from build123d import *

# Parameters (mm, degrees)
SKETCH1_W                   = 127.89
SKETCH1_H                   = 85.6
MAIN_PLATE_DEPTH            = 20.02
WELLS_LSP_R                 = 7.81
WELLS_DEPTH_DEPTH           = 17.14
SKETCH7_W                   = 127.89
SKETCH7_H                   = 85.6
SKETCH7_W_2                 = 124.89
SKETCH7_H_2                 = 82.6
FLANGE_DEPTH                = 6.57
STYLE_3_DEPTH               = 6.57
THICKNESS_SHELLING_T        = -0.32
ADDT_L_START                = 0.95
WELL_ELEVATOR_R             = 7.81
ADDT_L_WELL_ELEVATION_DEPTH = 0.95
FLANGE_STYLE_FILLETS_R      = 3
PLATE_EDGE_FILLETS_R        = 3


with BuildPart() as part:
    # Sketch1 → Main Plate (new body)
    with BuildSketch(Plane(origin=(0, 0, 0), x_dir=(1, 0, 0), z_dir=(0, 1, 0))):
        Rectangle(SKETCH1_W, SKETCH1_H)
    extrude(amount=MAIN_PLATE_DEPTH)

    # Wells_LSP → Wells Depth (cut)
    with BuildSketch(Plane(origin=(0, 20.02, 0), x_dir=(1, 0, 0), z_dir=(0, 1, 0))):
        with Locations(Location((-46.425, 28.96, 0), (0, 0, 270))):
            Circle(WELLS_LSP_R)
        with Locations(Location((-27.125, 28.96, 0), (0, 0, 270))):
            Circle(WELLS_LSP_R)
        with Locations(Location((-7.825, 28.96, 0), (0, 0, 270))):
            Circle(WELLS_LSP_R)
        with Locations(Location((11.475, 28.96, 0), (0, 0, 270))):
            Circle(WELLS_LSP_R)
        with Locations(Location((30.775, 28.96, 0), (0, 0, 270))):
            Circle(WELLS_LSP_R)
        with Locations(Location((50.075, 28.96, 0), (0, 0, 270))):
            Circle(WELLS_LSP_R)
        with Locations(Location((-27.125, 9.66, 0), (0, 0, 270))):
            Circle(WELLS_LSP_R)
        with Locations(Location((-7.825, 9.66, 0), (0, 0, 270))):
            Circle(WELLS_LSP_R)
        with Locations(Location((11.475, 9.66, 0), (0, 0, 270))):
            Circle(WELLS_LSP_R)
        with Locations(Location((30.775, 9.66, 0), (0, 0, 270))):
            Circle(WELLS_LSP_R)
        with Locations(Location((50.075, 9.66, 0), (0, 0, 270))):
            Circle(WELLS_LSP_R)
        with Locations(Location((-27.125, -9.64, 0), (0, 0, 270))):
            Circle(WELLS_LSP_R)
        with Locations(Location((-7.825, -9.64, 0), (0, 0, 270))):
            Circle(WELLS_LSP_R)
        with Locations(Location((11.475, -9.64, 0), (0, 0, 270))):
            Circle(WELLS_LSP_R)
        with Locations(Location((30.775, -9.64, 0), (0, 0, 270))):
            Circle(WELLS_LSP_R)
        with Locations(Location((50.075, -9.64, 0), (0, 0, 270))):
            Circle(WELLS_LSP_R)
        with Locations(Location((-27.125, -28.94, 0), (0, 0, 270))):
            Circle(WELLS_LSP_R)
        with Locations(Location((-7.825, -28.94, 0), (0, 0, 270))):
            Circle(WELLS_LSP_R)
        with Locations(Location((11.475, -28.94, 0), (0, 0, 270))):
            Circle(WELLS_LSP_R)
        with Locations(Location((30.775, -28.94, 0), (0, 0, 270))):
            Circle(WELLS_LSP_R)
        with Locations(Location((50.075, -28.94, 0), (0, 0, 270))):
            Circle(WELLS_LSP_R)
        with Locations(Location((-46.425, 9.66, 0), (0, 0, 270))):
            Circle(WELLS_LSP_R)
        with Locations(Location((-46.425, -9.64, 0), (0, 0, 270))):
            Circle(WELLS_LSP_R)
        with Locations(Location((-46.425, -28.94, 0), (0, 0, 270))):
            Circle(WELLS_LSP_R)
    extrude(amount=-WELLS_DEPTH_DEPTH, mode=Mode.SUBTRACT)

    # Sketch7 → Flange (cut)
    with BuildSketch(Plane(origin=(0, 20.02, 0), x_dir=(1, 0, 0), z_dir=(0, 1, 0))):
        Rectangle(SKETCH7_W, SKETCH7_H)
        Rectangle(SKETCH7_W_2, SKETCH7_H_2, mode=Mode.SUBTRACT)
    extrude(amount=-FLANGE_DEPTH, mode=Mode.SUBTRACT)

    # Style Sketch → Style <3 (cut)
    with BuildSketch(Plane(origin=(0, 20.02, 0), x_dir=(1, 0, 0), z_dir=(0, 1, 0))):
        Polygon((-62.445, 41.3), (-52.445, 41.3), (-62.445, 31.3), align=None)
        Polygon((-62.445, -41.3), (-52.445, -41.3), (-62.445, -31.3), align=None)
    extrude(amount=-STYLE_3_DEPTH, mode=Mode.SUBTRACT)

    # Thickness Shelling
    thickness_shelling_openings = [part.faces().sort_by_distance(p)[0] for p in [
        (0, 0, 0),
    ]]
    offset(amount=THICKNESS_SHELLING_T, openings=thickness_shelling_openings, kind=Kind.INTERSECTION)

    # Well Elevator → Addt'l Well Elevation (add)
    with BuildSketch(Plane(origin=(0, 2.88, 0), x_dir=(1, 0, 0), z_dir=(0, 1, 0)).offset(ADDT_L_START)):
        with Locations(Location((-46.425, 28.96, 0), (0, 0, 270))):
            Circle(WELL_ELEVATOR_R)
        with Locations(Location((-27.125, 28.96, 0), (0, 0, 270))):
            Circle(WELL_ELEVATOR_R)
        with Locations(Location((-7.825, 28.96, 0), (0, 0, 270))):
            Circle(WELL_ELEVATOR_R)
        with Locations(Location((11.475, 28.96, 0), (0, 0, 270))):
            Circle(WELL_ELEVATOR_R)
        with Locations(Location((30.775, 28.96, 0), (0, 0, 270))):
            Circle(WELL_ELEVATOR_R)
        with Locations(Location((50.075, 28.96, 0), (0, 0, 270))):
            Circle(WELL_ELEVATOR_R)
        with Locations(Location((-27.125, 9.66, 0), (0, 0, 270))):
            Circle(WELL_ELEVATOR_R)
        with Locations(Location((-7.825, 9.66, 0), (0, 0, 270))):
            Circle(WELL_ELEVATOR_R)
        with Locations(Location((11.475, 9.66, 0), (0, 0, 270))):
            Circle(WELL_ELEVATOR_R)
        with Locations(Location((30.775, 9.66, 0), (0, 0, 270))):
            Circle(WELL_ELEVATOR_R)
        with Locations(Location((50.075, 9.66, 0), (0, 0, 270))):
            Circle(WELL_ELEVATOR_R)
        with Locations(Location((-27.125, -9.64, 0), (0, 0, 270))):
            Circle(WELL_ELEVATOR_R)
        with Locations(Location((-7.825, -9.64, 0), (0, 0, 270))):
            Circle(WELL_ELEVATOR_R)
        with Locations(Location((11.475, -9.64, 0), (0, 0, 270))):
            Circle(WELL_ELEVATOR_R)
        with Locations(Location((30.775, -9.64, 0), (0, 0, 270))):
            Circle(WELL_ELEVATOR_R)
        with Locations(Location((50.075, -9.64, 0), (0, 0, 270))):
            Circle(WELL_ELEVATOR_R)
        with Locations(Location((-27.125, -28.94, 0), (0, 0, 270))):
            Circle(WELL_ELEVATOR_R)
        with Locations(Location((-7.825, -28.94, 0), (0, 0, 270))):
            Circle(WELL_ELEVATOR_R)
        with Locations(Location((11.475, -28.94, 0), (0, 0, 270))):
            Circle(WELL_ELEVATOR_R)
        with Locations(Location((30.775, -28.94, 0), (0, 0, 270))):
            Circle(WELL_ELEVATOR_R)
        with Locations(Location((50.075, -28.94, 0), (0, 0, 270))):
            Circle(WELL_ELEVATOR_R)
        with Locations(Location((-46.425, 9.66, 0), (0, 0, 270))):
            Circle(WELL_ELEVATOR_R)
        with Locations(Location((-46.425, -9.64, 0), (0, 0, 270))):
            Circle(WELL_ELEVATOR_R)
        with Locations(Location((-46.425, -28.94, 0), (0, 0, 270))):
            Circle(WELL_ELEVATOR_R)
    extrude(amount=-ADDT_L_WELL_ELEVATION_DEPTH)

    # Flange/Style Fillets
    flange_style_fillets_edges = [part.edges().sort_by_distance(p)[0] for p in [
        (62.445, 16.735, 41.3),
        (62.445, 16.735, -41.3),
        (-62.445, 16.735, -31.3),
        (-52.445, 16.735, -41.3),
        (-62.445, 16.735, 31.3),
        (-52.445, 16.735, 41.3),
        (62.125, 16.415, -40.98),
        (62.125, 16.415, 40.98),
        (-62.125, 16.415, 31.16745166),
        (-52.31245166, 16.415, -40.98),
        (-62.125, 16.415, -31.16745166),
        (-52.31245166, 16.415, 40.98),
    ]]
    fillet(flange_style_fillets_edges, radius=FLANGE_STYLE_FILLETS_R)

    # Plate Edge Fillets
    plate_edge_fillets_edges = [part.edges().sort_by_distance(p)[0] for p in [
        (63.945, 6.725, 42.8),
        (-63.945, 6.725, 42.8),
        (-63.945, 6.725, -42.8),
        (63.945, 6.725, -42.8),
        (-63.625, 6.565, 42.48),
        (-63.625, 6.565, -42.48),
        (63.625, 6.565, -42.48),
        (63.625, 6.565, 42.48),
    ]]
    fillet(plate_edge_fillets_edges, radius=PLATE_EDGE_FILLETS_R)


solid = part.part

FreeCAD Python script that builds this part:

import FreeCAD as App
import Part
import Sketcher
from FreeCAD import Vector
Q = App.Units.Quantity


def edges_at(feature, points):
    """Names of the edges that pass closest to the given points."""
    edges = feature.Shape.Edges
    near = lambda p: min(range(len(edges)), key=lambda i: edges[i].distToShape(Part.Vertex(*p))[0])
    return sorted({f"Edge{near(p) + 1}" for p in points})


def faces_at(feature, points):
    """Names of the faces that lie closest to the given points."""
    faces = feature.Shape.Faces
    near = lambda p: min(range(len(faces)), key=lambda i: faces[i].distToShape(Part.Vertex(*p))[0])
    return sorted({f"Face{near(p) + 1}" for p in points})

doc = App.newDocument("Part")
body = doc.addObject("PartDesign::Body", "Body")

# Sketch on XZ plane
sketch1 = body.newObject("Sketcher::SketchObject", "Sketch")
sketch1.AttachmentSupport = (doc.getObject("XZ_Plane"), [""])
sketch1.MapMode = "FlatFace"
sketch1.addGeometry([
    Part.LineSegment(Vector(-63.945, -42.8, 0), Vector(-63.945, 42.8, 0)),
    Part.LineSegment(Vector(-63.945, 42.8, 0), Vector(63.945, 42.8, 0)),
    Part.LineSegment(Vector(63.945, 42.8, 0), Vector(63.945, -42.8, 0)),
    Part.LineSegment(Vector(63.945, -42.8, 0), Vector(-63.945, -42.8, 0)),
], False)
sketch1.addConstraint([
    Sketcher.Constraint("Coincident", 0, 2, 1, 1),
    Sketcher.Constraint("Coincident", 1, 2, 2, 1),
    Sketcher.Constraint("Coincident", 2, 2, 3, 1),
    Sketcher.Constraint("Coincident", 3, 2, 0, 1),
    Sketcher.Constraint("Vertical", 0),
    Sketcher.Constraint("Horizontal", 1),
    Sketcher.Constraint("Vertical", 2),
    Sketcher.Constraint("Horizontal", 3),
    Sketcher.Constraint("Symmetric", 0, 2, 2, 2, -1, 1),
    Sketcher.Constraint("DistanceY", 0, 1, 0, 2, Q("85.6 mm")),
    Sketcher.Constraint("DistanceX", 1, 1, 1, 2, Q("127.89 mm")),
])
pad1 = body.newObject("PartDesign::Pad", "Pad")
pad1.Profile = sketch1
pad1.Length = 20.02
pad1.Reversed = True

# Sketch on XZ plane
sketch2 = body.newObject("Sketcher::SketchObject", "Sketch001")
sketch2.AttachmentSupport = (doc.getObject("XZ_Plane"), [""])
sketch2.MapMode = "FlatFace"
sketch2.AttachmentOffset = App.Placement(Vector(0, 0, -20.02), App.Rotation())
sketch2.addGeometry([
    Part.Circle(Vector(-46.425, -28.96, 0), Vector(0, 0, 1), 7.81),  # 0
    Part.Circle(Vector(-27.125, -28.96, 0), Vector(0, 0, 1), 7.81),  # 1
    Part.Circle(Vector(-7.825, -28.96, 0), Vector(0, 0, 1), 7.81),  # 2
    Part.Circle(Vector(11.475, -28.96, 0), Vector(0, 0, 1), 7.81),  # 3
    Part.Circle(Vector(30.775, -28.96, 0), Vector(0, 0, 1), 7.81),  # 4
    Part.Circle(Vector(50.075, -28.96, 0), Vector(0, 0, 1), 7.81),  # 5
    Part.Circle(Vector(-27.125, -9.66, 0), Vector(0, 0, 1), 7.81),  # 6
    Part.Circle(Vector(-7.825, -9.66, 0), Vector(0, 0, 1), 7.81),  # 7
    Part.Circle(Vector(11.475, -9.66, 0), Vector(0, 0, 1), 7.81),  # 8
    Part.Circle(Vector(30.775, -9.66, 0), Vector(0, 0, 1), 7.81),  # 9
    Part.Circle(Vector(50.075, -9.66, 0), Vector(0, 0, 1), 7.81),  # 10
    Part.Circle(Vector(-27.125, 9.64, 0), Vector(0, 0, 1), 7.81),  # 11
    Part.Circle(Vector(-7.825, 9.64, 0), Vector(0, 0, 1), 7.81),  # 12
    Part.Circle(Vector(11.475, 9.64, 0), Vector(0, 0, 1), 7.81),  # 13
    Part.Circle(Vector(30.775, 9.64, 0), Vector(0, 0, 1), 7.81),  # 14
    Part.Circle(Vector(50.075, 9.64, 0), Vector(0, 0, 1), 7.81),  # 15
    Part.Circle(Vector(-27.125, 28.94, 0), Vector(0, 0, 1), 7.81),  # 16
    Part.Circle(Vector(-7.825, 28.94, 0), Vector(0, 0, 1), 7.81),  # 17
    Part.Circle(Vector(11.475, 28.94, 0), Vector(0, 0, 1), 7.81),  # 18
    Part.Circle(Vector(30.775, 28.94, 0), Vector(0, 0, 1), 7.81),  # 19
    Part.Circle(Vector(50.075, 28.94, 0), Vector(0, 0, 1), 7.81),  # 20
    Part.Circle(Vector(-46.425, -9.66, 0), Vector(0, 0, 1), 7.81),  # 21
    Part.Circle(Vector(-46.425, 9.64, 0), Vector(0, 0, 1), 7.81),  # 22
    Part.Circle(Vector(-46.425, 28.94, 0), Vector(0, 0, 1), 7.81),  # 23
], False)
sketch2.addConstraint([
    Sketcher.Constraint("Equal", 0, 1),
    Sketcher.Constraint("Equal", 1, 2),
    Sketcher.Constraint("Equal", 2, 3),
    Sketcher.Constraint("Equal", 3, 4),
    Sketcher.Constraint("Equal", 4, 5),
    Sketcher.Constraint("Equal", 5, 6),
    Sketcher.Constraint("Equal", 6, 7),
    Sketcher.Constraint("Equal", 7, 8),
    Sketcher.Constraint("Equal", 8, 9),
    Sketcher.Constraint("Equal", 9, 10),
    Sketcher.Constraint("Equal", 10, 11),
    Sketcher.Constraint("Equal", 11, 12),
    Sketcher.Constraint("Equal", 12, 13),
    Sketcher.Constraint("Equal", 13, 14),
    Sketcher.Constraint("Equal", 14, 15),
    Sketcher.Constraint("Equal", 15, 16),
    Sketcher.Constraint("Equal", 16, 17),
    Sketcher.Constraint("Equal", 17, 18),
    Sketcher.Constraint("Equal", 18, 19),
    Sketcher.Constraint("Equal", 19, 20),
    Sketcher.Constraint("Equal", 20, 21),
    Sketcher.Constraint("Equal", 21, 22),
    Sketcher.Constraint("Equal", 22, 23),
    Sketcher.Constraint("Horizontal", 0, 3, 1, 3),
    Sketcher.Constraint("Horizontal", 1, 3, 2, 3),
    Sketcher.Constraint("Horizontal", 2, 3, 3, 3),
    Sketcher.Constraint("Horizontal", 3, 3, 4, 3),
    Sketcher.Constraint("Horizontal", 4, 3, 5, 3),
    Sketcher.Constraint("Horizontal", 6, 3, 7, 3),
    Sketcher.Constraint("Horizontal", 7, 3, 8, 3),
    Sketcher.Constraint("Horizontal", 8, 3, 9, 3),
    Sketcher.Constraint("Horizontal", 9, 3, 10, 3),
    Sketcher.Constraint("Horizontal", 11, 3, 12, 3),
    Sketcher.Constraint("Horizontal", 12, 3, 13, 3),
    Sketcher.Constraint("Horizontal", 13, 3, 14, 3),
    Sketcher.Constraint("Horizontal", 14, 3, 15, 3),
    Sketcher.Constraint("Horizontal", 16, 3, 17, 3),
    Sketcher.Constraint("Horizontal", 17, 3, 18, 3),
    Sketcher.Constraint("Horizontal", 18, 3, 19, 3),
    Sketcher.Constraint("Horizontal", 19, 3, 20, 3),
    Sketcher.Constraint("Horizontal", 10, 3, 21, 3),
    Sketcher.Constraint("Horizontal", 15, 3, 22, 3),
    Sketcher.Constraint("Horizontal", 20, 3, 23, 3),
    Sketcher.Constraint("Vertical", 1, 3, 6, 3),
    Sketcher.Constraint("Vertical", 2, 3, 7, 3),
    Sketcher.Constraint("Vertical", 3, 3, 8, 3),
    Sketcher.Constraint("Vertical", 4, 3, 9, 3),
    Sketcher.Constraint("Vertical", 5, 3, 10, 3),
    Sketcher.Constraint("Vertical", 6, 3, 11, 3),
    Sketcher.Constraint("Vertical", 7, 3, 12, 3),
    Sketcher.Constraint("Vertical", 8, 3, 13, 3),
    Sketcher.Constraint("Vertical", 9, 3, 14, 3),
    Sketcher.Constraint("Vertical", 10, 3, 15, 3),
    Sketcher.Constraint("Vertical", 11, 3, 16, 3),
    Sketcher.Constraint("Vertical", 12, 3, 17, 3),
    Sketcher.Constraint("Vertical", 13, 3, 18, 3),
    Sketcher.Constraint("Vertical", 14, 3, 19, 3),
    Sketcher.Constraint("Vertical", 15, 3, 20, 3),
    Sketcher.Constraint("Vertical", 0, 3, 21, 3),
    Sketcher.Constraint("Vertical", 21, 3, 22, 3),
    Sketcher.Constraint("Vertical", 22, 3, 23, 3),
    Sketcher.Constraint("Diameter", 0, Q("15.62 mm")),
    Sketcher.Constraint("DistanceX", 0, 3, 1, 3, Q("19.3 mm")),
    Sketcher.Constraint("DistanceX", 1, 3, 2, 3, Q("19.3 mm")),
    Sketcher.Constraint("DistanceX", 2, 3, 3, 3, Q("19.3 mm")),
    Sketcher.Constraint("DistanceX", 3, 3, 4, 3, Q("19.3 mm")),
    Sketcher.Constraint("DistanceX", 4, 3, 5, 3, Q("19.3 mm")),
    Sketcher.Constraint("DistanceY", 1, 3, 6, 3, Q("19.3 mm")),
    Sketcher.Constraint("DistanceY", 6, 3, 11, 3, Q("19.3 mm")),
    Sketcher.Constraint("DistanceY", 11, 3, 16, 3, Q("19.3 mm")),
    Sketcher.Constraint("DistanceY", 0, 3, -1, 1, Q("28.96 mm")),
    Sketcher.Constraint("DistanceX", 0, 3, -1, 1, Q("46.425 mm")),
])
pocket1 = body.newObject("PartDesign::Pocket", "Pocket")
pocket1.Profile = sketch2
pocket1.Length = 17.14
pocket1.Reversed = True

# Sketch on XZ plane
sketch3 = body.newObject("Sketcher::SketchObject", "Sketch002")
sketch3.AttachmentSupport = (doc.getObject("XZ_Plane"), [""])
sketch3.MapMode = "FlatFace"
sketch3.AttachmentOffset = App.Placement(Vector(0, 0, -20.02), App.Rotation())
sketch3.addGeometry([
    Part.LineSegment(Vector(-63.945, -42.8, 0), Vector(-63.945, 42.8, 0)),  # 0
    Part.LineSegment(Vector(-63.945, 42.8, 0), Vector(63.945, 42.8, 0)),  # 1
    Part.LineSegment(Vector(63.945, 42.8, 0), Vector(63.945, -42.8, 0)),  # 2
    Part.LineSegment(Vector(63.945, -42.8, 0), Vector(-63.945, -42.8, 0)),  # 3
    Part.LineSegment(Vector(62.445, 41.3, 0), Vector(-62.445, 41.3, 0)),  # 4
    Part.LineSegment(Vector(-62.445, 41.3, 0), Vector(-62.445, -41.3, 0)),  # 5
    Part.LineSegment(Vector(-62.445, -41.3, 0), Vector(62.445, -41.3, 0)),  # 6
    Part.LineSegment(Vector(62.445, -41.3, 0), Vector(62.445, 41.3, 0)),  # 7
], False)
sketch3.addConstraint([
    Sketcher.Constraint("Coincident", 0, 2, 1, 1),
    Sketcher.Constraint("Coincident", 1, 2, 2, 1),
    Sketcher.Constraint("Coincident", 2, 2, 3, 1),
    Sketcher.Constraint("Coincident", 3, 2, 0, 1),
    Sketcher.Constraint("Coincident", 4, 2, 5, 1),
    Sketcher.Constraint("Coincident", 5, 2, 6, 1),
    Sketcher.Constraint("Coincident", 6, 2, 7, 1),
    Sketcher.Constraint("Coincident", 7, 2, 4, 1),
    Sketcher.Constraint("Vertical", 0),
    Sketcher.Constraint("Horizontal", 1),
    Sketcher.Constraint("Vertical", 2),
    Sketcher.Constraint("Horizontal", 3),
    Sketcher.Constraint("Horizontal", 4),
    Sketcher.Constraint("Vertical", 5),
    Sketcher.Constraint("Horizontal", 6),
    Sketcher.Constraint("Vertical", 7),
    Sketcher.Constraint("Symmetric", 0, 2, 2, 2, -1, 1),
    Sketcher.Constraint("Symmetric", 4, 2, 6, 2, -1, 1),
    Sketcher.Constraint("DistanceY", 0, 1, 0, 2, Q("85.6 mm")),
    Sketcher.Constraint("DistanceY", 5, 2, 5, 1, Q("82.6 mm")),
    Sketcher.Constraint("DistanceX", 1, 1, 1, 2, Q("127.89 mm")),
    Sketcher.Constraint("DistanceX", 4, 2, 4, 1, Q("124.89 mm")),
])
pocket2 = body.newObject("PartDesign::Pocket", "Pocket001")
pocket2.Profile = sketch3
pocket2.Length = 6.57
pocket2.Reversed = True

# Sketch on XZ plane
sketch4 = body.newObject("Sketcher::SketchObject", "Sketch003")
sketch4.AttachmentSupport = (doc.getObject("XZ_Plane"), [""])
sketch4.MapMode = "FlatFace"
sketch4.AttachmentOffset = App.Placement(Vector(0, 0, -20.02), App.Rotation())
sketch4.addGeometry([
    Part.LineSegment(Vector(-52.445, -41.3, 0), Vector(-62.445, -41.3, 0)),  # 0
    Part.LineSegment(Vector(-62.445, -41.3, 0), Vector(-62.445, -31.3, 0)),  # 1
    Part.LineSegment(Vector(-62.445, -31.3, 0), Vector(-52.445, -41.3, 0)),  # 2
    Part.LineSegment(Vector(-62.445, 41.3, 0), Vector(-52.445, 41.3, 0)),  # 3
    Part.LineSegment(Vector(-52.445, 41.3, 0), Vector(-62.445, 31.3, 0)),  # 4
    Part.LineSegment(Vector(-62.445, 31.3, 0), Vector(-62.445, 41.3, 0)),  # 5
], False)
sketch4.addConstraint([
    Sketcher.Constraint("Coincident", 0, 2, 1, 1),
    Sketcher.Constraint("Coincident", 1, 2, 2, 1),
    Sketcher.Constraint("Coincident", 2, 2, 0, 1),
    Sketcher.Constraint("Coincident", 3, 2, 4, 1),
    Sketcher.Constraint("Coincident", 4, 2, 5, 1),
    Sketcher.Constraint("Coincident", 5, 2, 3, 1),
    Sketcher.Constraint("Horizontal", 0),
    Sketcher.Constraint("Vertical", 1),
    Sketcher.Constraint("Horizontal", 3),
    Sketcher.Constraint("Vertical", 5),
    Sketcher.Constraint("Symmetric", 2, 2, 3, 2, -1),
    Sketcher.Constraint("Symmetric", 1, 2, 4, 2, -1),
    Sketcher.Constraint("Perpendicular", 2, 4),
    Sketcher.Constraint("DistanceX", 0, 2, 0, 1, Q("10 mm")),
    Sketcher.Constraint("DistanceY", 0, 2, -1, 1, Q("41.3 mm")),
    Sketcher.Constraint("DistanceX", 0, 2, -1, 1, Q("62.445 mm")),
])
pocket3 = body.newObject("PartDesign::Pocket", "Pocket002")
pocket3.Profile = sketch4
pocket3.Length = 6.57
pocket3.Reversed = True
doc.recompute()

thickness = body.newObject("PartDesign::Thickness", "Thickness")
thickness.Base = (pocket3, faces_at(pocket3, [(0, 0, 0)]))
thickness.Value = 0.32
thickness.Reversed = True
thickness.Join = "Intersection"

# Sketch on XZ plane
sketch5 = body.newObject("Sketcher::SketchObject", "Sketch004")
sketch5.AttachmentSupport = (doc.getObject("XZ_Plane"), [""])
sketch5.MapMode = "FlatFace"
sketch5.AttachmentOffset = App.Placement(Vector(0, 0, -3.83), App.Rotation())
sketch5.addGeometry([
    Part.Circle(Vector(-46.425, -28.96, 0), Vector(0, 0, 1), 7.81),  # 0
    Part.Circle(Vector(-27.125, -28.96, 0), Vector(0, 0, 1), 7.81),  # 1
    Part.Circle(Vector(-7.825, -28.96, 0), Vector(0, 0, 1), 7.81),  # 2
    Part.Circle(Vector(11.475, -28.96, 0), Vector(0, 0, 1), 7.81),  # 3
    Part.Circle(Vector(30.775, -28.96, 0), Vector(0, 0, 1), 7.81),  # 4
    Part.Circle(Vector(50.075, -28.96, 0), Vector(0, 0, 1), 7.81),  # 5
    Part.Circle(Vector(-27.125, -9.66, 0), Vector(0, 0, 1), 7.81),  # 6
    Part.Circle(Vector(-7.825, -9.66, 0), Vector(0, 0, 1), 7.81),  # 7
    Part.Circle(Vector(11.475, -9.66, 0), Vector(0, 0, 1), 7.81),  # 8
    Part.Circle(Vector(30.775, -9.66, 0), Vector(0, 0, 1), 7.81),  # 9
    Part.Circle(Vector(50.075, -9.66, 0), Vector(0, 0, 1), 7.81),  # 10
    Part.Circle(Vector(-27.125, 9.64, 0), Vector(0, 0, 1), 7.81),  # 11
    Part.Circle(Vector(-7.825, 9.64, 0), Vector(0, 0, 1), 7.81),  # 12
    Part.Circle(Vector(11.475, 9.64, 0), Vector(0, 0, 1), 7.81),  # 13
    Part.Circle(Vector(30.775, 9.64, 0), Vector(0, 0, 1), 7.81),  # 14
    Part.Circle(Vector(50.075, 9.64, 0), Vector(0, 0, 1), 7.81),  # 15
    Part.Circle(Vector(-27.125, 28.94, 0), Vector(0, 0, 1), 7.81),  # 16
    Part.Circle(Vector(-7.825, 28.94, 0), Vector(0, 0, 1), 7.81),  # 17
    Part.Circle(Vector(11.475, 28.94, 0), Vector(0, 0, 1), 7.81),  # 18
    Part.Circle(Vector(30.775, 28.94, 0), Vector(0, 0, 1), 7.81),  # 19
    Part.Circle(Vector(50.075, 28.94, 0), Vector(0, 0, 1), 7.81),  # 20
    Part.Circle(Vector(-46.425, -9.66, 0), Vector(0, 0, 1), 7.81),  # 21
    Part.Circle(Vector(-46.425, 9.64, 0), Vector(0, 0, 1), 7.81),  # 22
    Part.Circle(Vector(-46.425, 28.94, 0), Vector(0, 0, 1), 7.81),  # 23
], False)
sketch5.addConstraint([
    Sketcher.Constraint("Equal", 0, 1),
    Sketcher.Constraint("Equal", 1, 2),
    Sketcher.Constraint("Equal", 2, 3),
    Sketcher.Constraint("Equal", 3, 4),
    Sketcher.Constraint("Equal", 4, 5),
    Sketcher.Constraint("Equal", 5, 6),
    Sketcher.Constraint("Equal", 6, 7),
    Sketcher.Constraint("Equal", 7, 8),
    Sketcher.Constraint("Equal", 8, 9),
    Sketcher.Constraint("Equal", 9, 10),
    Sketcher.Constraint("Equal", 10, 11),
    Sketcher.Constraint("Equal", 11, 12),
    Sketcher.Constraint("Equal", 12, 13),
    Sketcher.Constraint("Equal", 13, 14),
    Sketcher.Constraint("Equal", 14, 15),
    Sketcher.Constraint("Equal", 15, 16),
    Sketcher.Constraint("Equal", 16, 17),
    Sketcher.Constraint("Equal", 17, 18),
    Sketcher.Constraint("Equal", 18, 19),
    Sketcher.Constraint("Equal", 19, 20),
    Sketcher.Constraint("Equal", 20, 21),
    Sketcher.Constraint("Equal", 21, 22),
    Sketcher.Constraint("Equal", 22, 23),
    Sketcher.Constraint("Horizontal", 0, 3, 1, 3),
    Sketcher.Constraint("Horizontal", 1, 3, 2, 3),
    Sketcher.Constraint("Horizontal", 2, 3, 3, 3),
    Sketcher.Constraint("Horizontal", 3, 3, 4, 3),
    Sketcher.Constraint("Horizontal", 4, 3, 5, 3),
    Sketcher.Constraint("Horizontal", 6, 3, 7, 3),
    Sketcher.Constraint("Horizontal", 7, 3, 8, 3),
    Sketcher.Constraint("Horizontal", 8, 3, 9, 3),
    Sketcher.Constraint("Horizontal", 9, 3, 10, 3),
    Sketcher.Constraint("Horizontal", 11, 3, 12, 3),
    Sketcher.Constraint("Horizontal", 12, 3, 13, 3),
    Sketcher.Constraint("Horizontal", 13, 3, 14, 3),
    Sketcher.Constraint("Horizontal", 14, 3, 15, 3),
    Sketcher.Constraint("Horizontal", 16, 3, 17, 3),
    Sketcher.Constraint("Horizontal", 17, 3, 18, 3),
    Sketcher.Constraint("Horizontal", 18, 3, 19, 3),
    Sketcher.Constraint("Horizontal", 19, 3, 20, 3),
    Sketcher.Constraint("Horizontal", 10, 3, 21, 3),
    Sketcher.Constraint("Horizontal", 15, 3, 22, 3),
    Sketcher.Constraint("Horizontal", 20, 3, 23, 3),
    Sketcher.Constraint("Vertical", 1, 3, 6, 3),
    Sketcher.Constraint("Vertical", 2, 3, 7, 3),
    Sketcher.Constraint("Vertical", 3, 3, 8, 3),
    Sketcher.Constraint("Vertical", 4, 3, 9, 3),
    Sketcher.Constraint("Vertical", 5, 3, 10, 3),
    Sketcher.Constraint("Vertical", 6, 3, 11, 3),
    Sketcher.Constraint("Vertical", 7, 3, 12, 3),
    Sketcher.Constraint("Vertical", 8, 3, 13, 3),
    Sketcher.Constraint("Vertical", 9, 3, 14, 3),
    Sketcher.Constraint("Vertical", 10, 3, 15, 3),
    Sketcher.Constraint("Vertical", 11, 3, 16, 3),
    Sketcher.Constraint("Vertical", 12, 3, 17, 3),
    Sketcher.Constraint("Vertical", 13, 3, 18, 3),
    Sketcher.Constraint("Vertical", 14, 3, 19, 3),
    Sketcher.Constraint("Vertical", 15, 3, 20, 3),
    Sketcher.Constraint("Vertical", 0, 3, 21, 3),
    Sketcher.Constraint("Vertical", 21, 3, 22, 3),
    Sketcher.Constraint("Vertical", 22, 3, 23, 3),
    Sketcher.Constraint("Diameter", 0, Q("15.62 mm")),
    Sketcher.Constraint("DistanceX", 0, 3, 1, 3, Q("19.3 mm")),
    Sketcher.Constraint("DistanceX", 1, 3, 2, 3, Q("19.3 mm")),
    Sketcher.Constraint("DistanceX", 2, 3, 3, 3, Q("19.3 mm")),
    Sketcher.Constraint("DistanceX", 3, 3, 4, 3, Q("19.3 mm")),
    Sketcher.Constraint("DistanceX", 4, 3, 5, 3, Q("19.3 mm")),
    Sketcher.Constraint("DistanceY", 1, 3, 6, 3, Q("19.3 mm")),
    Sketcher.Constraint("DistanceY", 6, 3, 11, 3, Q("19.3 mm")),
    Sketcher.Constraint("DistanceY", 11, 3, 16, 3, Q("19.3 mm")),
    Sketcher.Constraint("DistanceY", 0, 3, -1, 1, Q("28.96 mm")),
    Sketcher.Constraint("DistanceX", 0, 3, -1, 1, Q("46.425 mm")),
])
pad2 = body.newObject("PartDesign::Pad", "Pad001")
pad2.Profile = sketch5
pad2.Length = 0.95
doc.recompute()

fillet = body.newObject("PartDesign::Fillet", "Fillet")
fillet.Base = (pad2, edges_at(pad2, [
    (62.445, 16.735, 41.3),
    (62.445, 16.735, -41.3),
    (-62.445, 16.735, -31.3),
    (-52.445, 16.735, -41.3),
    (-62.445, 16.735, 31.3),
    (-52.445, 16.735, 41.3),
    (62.125, 16.415, -40.98),
    (62.125, 16.415, 40.98),
    (-62.125, 16.415, 31.167),
    (-52.312, 16.415, -40.98),
    (-62.125, 16.415, -31.167),
    (-52.312, 16.415, 40.98),
]))
fillet.Radius = 3
doc.recompute()

fillet2 = body.newObject("PartDesign::Fillet", "Fillet001")
fillet2.Base = (fillet, edges_at(fillet, [
    (63.945, 6.725, 42.8),
    (-63.945, 6.725, 42.8),
    (-63.945, 6.725, -42.8),
    (63.945, 6.725, -42.8),
    (-63.625, 6.565, 42.48),
    (-63.625, 6.565, -42.48),
    (63.625, 6.565, -42.48),
    (63.625, 6.565, 42.48),
]))
fillet2.Radius = 3

doc.recompute()
